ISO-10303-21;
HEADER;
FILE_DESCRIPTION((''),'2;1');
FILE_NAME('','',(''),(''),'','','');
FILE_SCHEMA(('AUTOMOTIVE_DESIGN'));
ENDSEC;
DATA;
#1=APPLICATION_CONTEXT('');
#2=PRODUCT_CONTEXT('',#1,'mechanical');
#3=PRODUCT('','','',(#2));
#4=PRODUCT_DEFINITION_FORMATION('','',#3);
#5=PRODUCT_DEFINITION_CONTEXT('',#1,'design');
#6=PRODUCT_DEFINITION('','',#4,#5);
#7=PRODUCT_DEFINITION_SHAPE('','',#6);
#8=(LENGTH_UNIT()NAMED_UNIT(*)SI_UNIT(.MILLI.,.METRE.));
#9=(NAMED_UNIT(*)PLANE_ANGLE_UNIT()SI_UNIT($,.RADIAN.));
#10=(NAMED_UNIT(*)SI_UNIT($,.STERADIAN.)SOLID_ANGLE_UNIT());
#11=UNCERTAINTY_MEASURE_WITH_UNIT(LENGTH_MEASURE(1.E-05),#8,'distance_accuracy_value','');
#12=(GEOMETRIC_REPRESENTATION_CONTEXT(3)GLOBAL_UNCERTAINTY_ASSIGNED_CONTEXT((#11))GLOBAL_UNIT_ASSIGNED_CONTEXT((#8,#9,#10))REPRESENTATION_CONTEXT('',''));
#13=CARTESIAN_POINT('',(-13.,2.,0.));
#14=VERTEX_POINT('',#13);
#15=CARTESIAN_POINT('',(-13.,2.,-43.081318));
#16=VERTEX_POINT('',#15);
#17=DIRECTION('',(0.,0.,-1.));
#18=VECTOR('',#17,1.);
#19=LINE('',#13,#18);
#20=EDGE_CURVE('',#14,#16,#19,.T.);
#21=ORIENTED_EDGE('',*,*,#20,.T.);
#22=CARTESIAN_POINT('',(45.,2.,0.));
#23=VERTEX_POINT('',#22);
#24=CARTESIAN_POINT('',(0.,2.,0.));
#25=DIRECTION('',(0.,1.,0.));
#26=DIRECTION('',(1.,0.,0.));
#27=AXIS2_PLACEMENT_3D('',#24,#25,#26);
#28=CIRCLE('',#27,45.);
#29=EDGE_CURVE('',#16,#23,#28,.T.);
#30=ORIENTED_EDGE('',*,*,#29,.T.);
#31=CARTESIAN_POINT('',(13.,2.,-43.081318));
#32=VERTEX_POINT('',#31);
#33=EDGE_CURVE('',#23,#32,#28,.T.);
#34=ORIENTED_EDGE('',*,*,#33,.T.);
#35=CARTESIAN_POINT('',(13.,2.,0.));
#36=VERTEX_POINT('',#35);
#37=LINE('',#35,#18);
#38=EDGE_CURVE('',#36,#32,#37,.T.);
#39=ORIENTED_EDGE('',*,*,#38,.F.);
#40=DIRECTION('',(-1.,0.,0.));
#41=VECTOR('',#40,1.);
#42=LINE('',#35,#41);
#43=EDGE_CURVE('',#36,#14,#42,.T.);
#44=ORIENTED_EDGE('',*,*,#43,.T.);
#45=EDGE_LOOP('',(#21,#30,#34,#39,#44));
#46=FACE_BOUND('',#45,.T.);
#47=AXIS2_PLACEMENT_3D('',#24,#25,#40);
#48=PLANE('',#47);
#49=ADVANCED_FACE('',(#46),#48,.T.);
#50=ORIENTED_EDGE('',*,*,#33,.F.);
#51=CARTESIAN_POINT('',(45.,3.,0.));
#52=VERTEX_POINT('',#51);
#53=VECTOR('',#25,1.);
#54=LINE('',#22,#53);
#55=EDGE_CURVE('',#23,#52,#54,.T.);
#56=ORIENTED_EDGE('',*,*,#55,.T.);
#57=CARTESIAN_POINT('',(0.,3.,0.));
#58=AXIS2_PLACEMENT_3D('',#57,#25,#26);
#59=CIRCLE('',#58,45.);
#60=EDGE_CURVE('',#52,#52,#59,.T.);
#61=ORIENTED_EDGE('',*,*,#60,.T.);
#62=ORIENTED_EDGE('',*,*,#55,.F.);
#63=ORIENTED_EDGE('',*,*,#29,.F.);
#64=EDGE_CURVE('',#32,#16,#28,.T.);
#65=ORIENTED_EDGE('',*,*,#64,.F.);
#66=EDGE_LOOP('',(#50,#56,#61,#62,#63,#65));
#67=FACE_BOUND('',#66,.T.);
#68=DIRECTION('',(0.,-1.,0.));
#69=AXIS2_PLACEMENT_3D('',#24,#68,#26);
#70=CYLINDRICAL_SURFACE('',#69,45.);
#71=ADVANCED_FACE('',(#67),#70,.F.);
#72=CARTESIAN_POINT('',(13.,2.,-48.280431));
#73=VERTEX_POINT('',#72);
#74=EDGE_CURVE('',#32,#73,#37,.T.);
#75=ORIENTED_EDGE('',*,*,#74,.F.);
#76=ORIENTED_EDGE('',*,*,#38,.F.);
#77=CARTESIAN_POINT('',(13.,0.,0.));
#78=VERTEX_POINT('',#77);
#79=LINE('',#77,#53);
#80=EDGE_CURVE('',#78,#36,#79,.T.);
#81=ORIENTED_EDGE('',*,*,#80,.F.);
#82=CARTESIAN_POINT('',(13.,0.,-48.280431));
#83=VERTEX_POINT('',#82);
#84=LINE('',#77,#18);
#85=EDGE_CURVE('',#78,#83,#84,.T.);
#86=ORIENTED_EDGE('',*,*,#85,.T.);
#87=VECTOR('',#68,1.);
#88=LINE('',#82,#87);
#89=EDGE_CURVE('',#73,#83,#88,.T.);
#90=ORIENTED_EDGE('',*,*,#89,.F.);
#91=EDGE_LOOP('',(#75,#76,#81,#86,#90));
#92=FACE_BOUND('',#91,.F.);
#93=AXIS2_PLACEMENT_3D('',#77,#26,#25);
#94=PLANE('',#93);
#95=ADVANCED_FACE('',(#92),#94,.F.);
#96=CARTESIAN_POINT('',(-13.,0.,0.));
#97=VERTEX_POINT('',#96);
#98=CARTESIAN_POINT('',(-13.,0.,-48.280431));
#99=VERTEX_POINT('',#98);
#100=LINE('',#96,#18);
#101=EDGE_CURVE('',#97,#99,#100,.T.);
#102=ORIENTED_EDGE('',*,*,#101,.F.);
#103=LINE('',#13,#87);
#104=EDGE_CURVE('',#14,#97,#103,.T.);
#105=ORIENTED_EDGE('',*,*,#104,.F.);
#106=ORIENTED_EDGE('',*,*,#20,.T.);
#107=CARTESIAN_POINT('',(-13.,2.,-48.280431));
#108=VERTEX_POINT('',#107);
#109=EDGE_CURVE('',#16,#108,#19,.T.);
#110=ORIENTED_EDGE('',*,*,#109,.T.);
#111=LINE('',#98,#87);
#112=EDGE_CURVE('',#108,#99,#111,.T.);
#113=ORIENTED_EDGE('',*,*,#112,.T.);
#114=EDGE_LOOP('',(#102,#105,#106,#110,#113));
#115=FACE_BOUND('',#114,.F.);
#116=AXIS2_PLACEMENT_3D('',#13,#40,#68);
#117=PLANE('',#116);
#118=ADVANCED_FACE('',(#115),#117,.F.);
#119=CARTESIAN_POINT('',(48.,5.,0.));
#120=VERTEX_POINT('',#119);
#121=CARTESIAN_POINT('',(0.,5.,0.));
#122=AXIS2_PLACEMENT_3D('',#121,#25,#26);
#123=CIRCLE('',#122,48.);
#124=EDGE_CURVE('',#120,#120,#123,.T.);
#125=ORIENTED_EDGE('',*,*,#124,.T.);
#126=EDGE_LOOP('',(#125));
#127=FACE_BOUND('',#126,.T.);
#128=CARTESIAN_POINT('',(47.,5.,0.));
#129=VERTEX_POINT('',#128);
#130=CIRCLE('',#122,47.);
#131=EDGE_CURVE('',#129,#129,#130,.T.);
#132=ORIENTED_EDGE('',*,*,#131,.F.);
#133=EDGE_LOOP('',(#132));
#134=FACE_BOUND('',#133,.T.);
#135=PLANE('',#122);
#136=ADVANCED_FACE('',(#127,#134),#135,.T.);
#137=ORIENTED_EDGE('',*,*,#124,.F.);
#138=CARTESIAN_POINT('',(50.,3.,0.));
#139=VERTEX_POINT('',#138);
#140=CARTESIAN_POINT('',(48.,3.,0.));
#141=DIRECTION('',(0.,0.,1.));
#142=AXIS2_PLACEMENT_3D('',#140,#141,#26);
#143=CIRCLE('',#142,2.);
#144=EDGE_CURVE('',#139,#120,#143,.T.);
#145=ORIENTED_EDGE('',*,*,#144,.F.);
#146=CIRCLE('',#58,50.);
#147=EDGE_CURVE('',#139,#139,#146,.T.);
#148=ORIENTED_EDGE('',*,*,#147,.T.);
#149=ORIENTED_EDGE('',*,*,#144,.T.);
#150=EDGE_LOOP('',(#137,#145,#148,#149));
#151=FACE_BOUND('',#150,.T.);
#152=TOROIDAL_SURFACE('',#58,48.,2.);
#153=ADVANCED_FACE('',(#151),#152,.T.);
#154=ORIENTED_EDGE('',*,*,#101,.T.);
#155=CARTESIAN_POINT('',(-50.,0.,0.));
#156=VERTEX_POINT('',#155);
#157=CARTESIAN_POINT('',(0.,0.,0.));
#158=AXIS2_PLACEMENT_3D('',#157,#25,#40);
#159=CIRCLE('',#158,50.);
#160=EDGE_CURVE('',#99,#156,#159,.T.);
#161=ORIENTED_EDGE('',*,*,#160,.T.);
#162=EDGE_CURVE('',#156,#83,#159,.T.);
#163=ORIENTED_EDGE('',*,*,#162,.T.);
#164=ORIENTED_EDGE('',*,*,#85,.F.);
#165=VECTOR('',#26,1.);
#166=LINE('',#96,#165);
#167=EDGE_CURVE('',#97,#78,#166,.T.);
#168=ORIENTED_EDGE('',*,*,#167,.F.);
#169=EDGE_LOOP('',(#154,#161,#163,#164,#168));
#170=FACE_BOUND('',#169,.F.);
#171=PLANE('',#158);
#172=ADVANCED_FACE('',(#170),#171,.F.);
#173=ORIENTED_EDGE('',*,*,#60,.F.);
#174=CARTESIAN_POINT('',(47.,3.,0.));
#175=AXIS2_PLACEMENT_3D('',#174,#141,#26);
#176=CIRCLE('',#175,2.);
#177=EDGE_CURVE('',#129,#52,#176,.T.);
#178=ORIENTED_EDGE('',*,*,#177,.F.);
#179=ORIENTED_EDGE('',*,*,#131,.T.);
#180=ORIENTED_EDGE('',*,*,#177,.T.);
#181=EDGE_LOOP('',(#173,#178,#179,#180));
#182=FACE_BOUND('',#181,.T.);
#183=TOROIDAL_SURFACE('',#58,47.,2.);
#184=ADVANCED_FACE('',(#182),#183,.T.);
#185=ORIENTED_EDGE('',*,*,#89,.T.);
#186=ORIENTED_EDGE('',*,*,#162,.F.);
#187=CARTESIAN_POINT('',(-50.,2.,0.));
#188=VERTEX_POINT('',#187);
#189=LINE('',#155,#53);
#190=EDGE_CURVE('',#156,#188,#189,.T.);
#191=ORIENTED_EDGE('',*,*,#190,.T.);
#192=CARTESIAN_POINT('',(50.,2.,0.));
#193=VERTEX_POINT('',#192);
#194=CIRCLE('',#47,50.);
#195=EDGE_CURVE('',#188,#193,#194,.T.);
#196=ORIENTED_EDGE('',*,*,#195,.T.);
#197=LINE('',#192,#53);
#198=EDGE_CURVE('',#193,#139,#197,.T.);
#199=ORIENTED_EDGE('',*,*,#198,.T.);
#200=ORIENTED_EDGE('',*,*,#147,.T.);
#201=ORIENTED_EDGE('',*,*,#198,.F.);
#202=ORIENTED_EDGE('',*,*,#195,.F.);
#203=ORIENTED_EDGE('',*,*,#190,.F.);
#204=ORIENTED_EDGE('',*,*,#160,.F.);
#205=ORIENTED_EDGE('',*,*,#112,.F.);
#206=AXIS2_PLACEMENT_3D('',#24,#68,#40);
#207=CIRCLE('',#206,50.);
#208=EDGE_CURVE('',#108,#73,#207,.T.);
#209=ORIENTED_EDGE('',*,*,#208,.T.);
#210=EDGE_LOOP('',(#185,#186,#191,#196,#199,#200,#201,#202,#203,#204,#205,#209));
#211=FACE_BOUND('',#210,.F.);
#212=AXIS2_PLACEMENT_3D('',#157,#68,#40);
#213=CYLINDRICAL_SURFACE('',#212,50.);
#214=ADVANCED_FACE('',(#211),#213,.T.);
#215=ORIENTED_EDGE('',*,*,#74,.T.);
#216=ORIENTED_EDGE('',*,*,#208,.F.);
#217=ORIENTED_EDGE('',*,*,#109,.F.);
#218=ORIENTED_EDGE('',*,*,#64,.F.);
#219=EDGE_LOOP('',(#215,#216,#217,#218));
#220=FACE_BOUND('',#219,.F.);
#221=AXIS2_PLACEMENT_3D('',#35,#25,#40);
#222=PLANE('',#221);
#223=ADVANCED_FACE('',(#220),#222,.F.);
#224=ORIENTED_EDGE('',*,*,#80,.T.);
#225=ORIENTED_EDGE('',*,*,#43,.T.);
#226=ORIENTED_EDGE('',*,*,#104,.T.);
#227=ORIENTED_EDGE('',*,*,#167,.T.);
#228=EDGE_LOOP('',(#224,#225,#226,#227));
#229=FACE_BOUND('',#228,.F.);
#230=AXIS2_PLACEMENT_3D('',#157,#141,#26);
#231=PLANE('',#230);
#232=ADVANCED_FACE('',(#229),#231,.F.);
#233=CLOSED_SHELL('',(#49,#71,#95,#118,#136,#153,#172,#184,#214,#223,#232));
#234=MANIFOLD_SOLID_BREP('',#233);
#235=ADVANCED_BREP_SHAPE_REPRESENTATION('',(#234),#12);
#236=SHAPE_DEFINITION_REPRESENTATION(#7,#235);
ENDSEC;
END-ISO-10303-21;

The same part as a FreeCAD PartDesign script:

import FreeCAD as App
import Part
import Sketcher

V = App.Vector


def edges_at(feature, points):
    """Names of the edges that pass closest to the given points."""
    edges = feature.Shape.Edges
    near = lambda p: min(range(len(edges)), key=lambda i: edges[i].distToShape(Part.Vertex(*p))[0])
    return sorted({f"Edge{near(p) + 1}" for p in points})

doc = App.newDocument("Part")
body = doc.addObject("PartDesign::Body", "Body")

# Sketch on XZ plane
sketch1 = body.newObject("Sketcher::SketchObject", "Sketch")
sketch1.AttachmentSupport = (doc.getObject("XZ_Plane"), [""])
sketch1.MapMode = "FlatFace"
sketch1.addGeometry(Part.Circle(V(0, 0, 0), V(0, 0, 1), 50), False)
sketch1.addConstraint([
    Sketcher.Constraint("Coincident", 0, 3, -1, 1),
    Sketcher.Constraint("Diameter", 0, 100.0),
])
pad1 = body.newObject("PartDesign::Pad", "Pad")
pad1.Profile = sketch1
pad1.Length = 2
pad1.Reversed = True

# Sketch on XZ plane
sketch2 = body.newObject("Sketcher::SketchObject", "Sketch001")
sketch2.AttachmentSupport = (doc.getObject("XZ_Plane"), [""])
sketch2.MapMode = "FlatFace"
sketch2.AttachmentOffset = App.Placement(V(0, 0, -2), App.Rotation())
sketch2.addGeometry([
    Part.Circle(V(0, 0, 0), V(0, 0, 1), 50),
    Part.Circle(V(0, 0, 0), V(0, 0, 1), 45),
], False)
sketch2.addConstraint([
    Sketcher.Constraint("Coincident", 0, 3, -1, 1),
    Sketcher.Constraint("Coincident", 1, 3, -1, 1),
    Sketcher.Constraint("Diameter", 0, 100.0),
    Sketcher.Constraint("Diameter", 1, 90.0),
])
pad2 = body.newObject("PartDesign::Pad", "Pad001")
pad2.Profile = sketch2
pad2.Length = 3
pad2.Reversed = True
doc.recompute()

fillet = body.newObject("PartDesign::Fillet", "Fillet")
fillet.Base = (pad2, edges_at(pad2, [(-45, 5, 0), (-50, 5, 0)]))
fillet.Radius = 2

# Sketch on XY plane
sketch3 = body.newObject("Sketcher::SketchObject", "Sketch002")
sketch3.AttachmentSupport = (doc.getObject("XY_Plane"), [""])
sketch3.MapMode = "FlatFace"
sketch3.addGeometry([
    Part.LineSegment(V(-13, 2, 0), V(-13, 0, 0)),
    Part.LineSegment(V(-13, 0, 0), V(13, 0, 0)),
    Part.LineSegment(V(13, 0, 0), V(13, 2, 0)),
    Part.LineSegment(V(13, 2, 0), V(-13, 2, 0)),
], False)
sketch3.addConstraint([
    Sketcher.Constraint("Coincident", 0, 2, 1, 1),
    Sketcher.Constraint("Coincident", 1, 2, 2, 1),
    Sketcher.Constraint("Coincident", 2, 2, 3, 1),
    Sketcher.Constraint("Coincident", 3, 2, 0, 1),
    Sketcher.Constraint("Vertical", 0),
    Sketcher.Constraint("Horizontal", 1),
    Sketcher.Constraint("Vertical", 2),
    Sketcher.Constraint("Horizontal", 3),
    Sketcher.Constraint("Symmetric", 0, 2, 1, 2, -1, 1),
    Sketcher.Constraint("DistanceX", 1, 1, 1, 2, 26.0),
    Sketcher.Constraint("DistanceY", 0, 2, 0, 1, 2.0),
])
pocket1 = body.newObject("PartDesign::Pocket", "Pocket")
pocket1.Profile = sketch3
pocket1.Type = "ThroughAll"

doc.recompute()
